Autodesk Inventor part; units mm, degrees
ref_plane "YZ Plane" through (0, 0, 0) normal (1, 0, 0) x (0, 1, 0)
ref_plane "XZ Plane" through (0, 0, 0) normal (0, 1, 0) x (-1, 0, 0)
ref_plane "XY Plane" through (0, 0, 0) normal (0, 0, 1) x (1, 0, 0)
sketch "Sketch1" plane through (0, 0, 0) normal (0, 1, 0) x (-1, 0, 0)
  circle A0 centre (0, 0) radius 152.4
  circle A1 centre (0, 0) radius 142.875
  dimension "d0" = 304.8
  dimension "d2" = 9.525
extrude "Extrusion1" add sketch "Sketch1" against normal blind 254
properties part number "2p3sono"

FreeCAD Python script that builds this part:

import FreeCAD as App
import Part
import Sketcher
Q = App.Units.Quantity

doc = App.newDocument("Part")
body = doc.addObject("PartDesign::Body", "Body")

# Sketch on XZ plane
sketch1 = doc.addObject("Sketcher::SketchObject", "Sketch")
body.addObject(sketch1)
sketch1.AttachmentSupport = (doc.XZ_Plane, [""])
sketch1.MapMode = "FlatFace"
sketch1.addGeometry([
    Part.Circle(App.Vector(0, 0, 0), App.Vector(0, 0, 1), 152),
    Part.Circle(App.Vector(0, 0, 0), App.Vector(0, 0, 1), 143),
], False)
sketch1.addConstraint([
    Sketcher.Constraint("Coincident", 0, 3, -1, 1),
    Sketcher.Constraint("Coincident", 1, 3, -1, 1),
    Sketcher.Constraint("Diameter", 0, Q("12 in")),
    Sketcher.Constraint("Diameter", 1, Q("11.25 in")),
])
pad1 = doc.addObject("PartDesign::Pad", "Pad")
body.addObject(pad1)
pad1.Profile = sketch1
pad1.Length = Q("10 in")

doc.recompute()
